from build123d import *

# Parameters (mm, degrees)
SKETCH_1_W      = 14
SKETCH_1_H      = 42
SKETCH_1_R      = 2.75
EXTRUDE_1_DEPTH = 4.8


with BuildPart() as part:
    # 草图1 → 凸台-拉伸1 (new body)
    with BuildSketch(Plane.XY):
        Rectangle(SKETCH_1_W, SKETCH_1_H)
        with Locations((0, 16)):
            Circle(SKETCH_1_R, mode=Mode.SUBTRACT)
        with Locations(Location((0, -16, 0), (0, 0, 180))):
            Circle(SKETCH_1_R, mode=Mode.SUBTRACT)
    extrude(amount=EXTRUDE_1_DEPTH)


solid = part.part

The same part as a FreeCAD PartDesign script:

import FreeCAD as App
import Part
import Sketcher

doc = App.newDocument("Part")
body = doc.addObject("PartDesign::Body", "Body")

# Sketch on XY plane
sketch1 = body.newObject("Sketcher::SketchObject", "Sketch")
sketch1.AttachmentSupport = (doc.getObject("XY_Plane"), [""])
sketch1.MapMode = "FlatFace"
sketch1.addGeometry([
    Part.LineSegment(App.Vector(-7, 21, 0), App.Vector(-7, -21, 0)),  # 0
    Part.LineSegment(App.Vector(-7, -21, 0), App.Vector(7, -21, 0)),  # 1
    Part.LineSegment(App.Vector(7, -21, 0), App.Vector(7, 21, 0)),  # 2
    Part.LineSegment(App.Vector(7, 21, 0), App.Vector(-7, 21, 0)),  # 3
    Part.Circle(App.Vector(0, -16, 0), App.Vector(0, 0, 1), 2.8),  # 4
    Part.Circle(App.Vector(0, 16, 0), App.Vector(0, 0, 1), 2.8),  # 5
], False)
sketch1.addConstraint([
    Sketcher.Constraint("Coincident", 0, 2, 1, 1),
    Sketcher.Constraint("Coincident", 1, 2, 2, 1),
    Sketcher.Constraint("Coincident", 2, 2, 3, 1),
    Sketcher.Constraint("Coincident", 3, 2, 0, 1),
    Sketcher.Constraint("Vertical", 0),
    Sketcher.Constraint("Horizontal", 1),
    Sketcher.Constraint("Vertical", 2),
    Sketcher.Constraint("Horizontal", 3),
    Sketcher.Constraint("Equal", 4, 5),
    Sketcher.Constraint("Symmetric", 4, 3, 5, 3, -1, 1),
    Sketcher.Constraint("Symmetric", 0, 2, 2, 2, -1, 1),
    Sketcher.Constraint("PointOnObject", 4, 3, -2),
    Sketcher.Constraint("Diameter", 4, 5.5),
    Sketcher.Constraint("DistanceX", 1, 1, 1, 2, 14.0),
    Sketcher.Constraint("DistanceY", 0, 2, 0, 1, 42.0),
    Sketcher.Constraint("DistanceY", 4, 3, -1, 1, 16.0),
])
pad1 = body.newObject("PartDesign::Pad", "Pad")
pad1.Profile = sketch1
pad1.Length = 4.8

doc.recompute()
